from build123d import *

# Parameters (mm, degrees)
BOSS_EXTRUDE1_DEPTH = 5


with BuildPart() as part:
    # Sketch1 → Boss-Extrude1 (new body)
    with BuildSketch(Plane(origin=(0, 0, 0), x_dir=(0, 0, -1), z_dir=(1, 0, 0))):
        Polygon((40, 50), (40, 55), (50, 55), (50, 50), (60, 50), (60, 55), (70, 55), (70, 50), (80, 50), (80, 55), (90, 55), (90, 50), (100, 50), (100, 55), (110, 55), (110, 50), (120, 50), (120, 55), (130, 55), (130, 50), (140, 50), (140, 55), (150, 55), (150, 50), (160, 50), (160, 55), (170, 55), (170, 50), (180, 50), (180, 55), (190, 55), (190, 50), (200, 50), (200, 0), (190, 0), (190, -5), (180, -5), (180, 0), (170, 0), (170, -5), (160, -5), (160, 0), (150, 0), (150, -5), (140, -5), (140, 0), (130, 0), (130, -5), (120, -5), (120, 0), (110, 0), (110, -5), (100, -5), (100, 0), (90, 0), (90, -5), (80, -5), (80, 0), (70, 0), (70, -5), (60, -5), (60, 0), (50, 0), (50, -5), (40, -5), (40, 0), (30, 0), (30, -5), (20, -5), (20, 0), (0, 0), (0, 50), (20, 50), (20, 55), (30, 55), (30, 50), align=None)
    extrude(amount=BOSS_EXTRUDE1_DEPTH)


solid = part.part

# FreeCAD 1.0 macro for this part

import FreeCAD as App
import Part
import Sketcher

V = App.Vector
Q = App.Units.Quantity

doc = App.newDocument("Part")
body = doc.addObject("PartDesign::Body", "Body")

sketch1 = body.newObject("Sketcher::SketchObject", "Sketch")
sketch1.AttachmentSupport = (doc.getObject("YZ_Plane"), [""])
sketch1.MapMode = "FlatFace"
sketch1.addGeometry([
    Part.LineSegment(V(55, -40, 0), V(50, -40, 0)),
    Part.LineSegment(V(50, -40, 0), V(50, -30, 0)),
    Part.LineSegment(V(50, -30, 0), V(55, -30, 0)),
    Part.LineSegment(V(55, -30, 0), V(55, -20, 0)),
    Part.LineSegment(V(55, -20, 0), V(50, -20, 0)),
    Part.LineSegment(V(50, -20, 0), V(50, 0, 0)),
    Part.LineSegment(V(50, 0, 0), V(0, 0, 0)),
    Part.LineSegment(V(0, 0, 0), V(0, -20, 0)),
    Part.LineSegment(V(0, -20, 0), V(-5, -20, 0)),
    Part.LineSegment(V(-5, -20, 0), V(-5, -30, 0)),
    Part.LineSegment(V(-5, -30, 0), V(0, -30, 0)),
    Part.LineSegment(V(0, -30, 0), V(0, -40, 0)),
    Part.LineSegment(V(0, -40, 0), V(-5, -40, 0)),
    Part.LineSegment(V(-5, -40, 0), V(-5, -50, 0)),
    Part.LineSegment(V(-5, -50, 0), V(0, -50, 0)),
    Part.LineSegment(V(0, -50, 0), V(0, -60, 0)),
    Part.LineSegment(V(0, -60, 0), V(-5, -60, 0)),
    Part.LineSegment(V(-5, -60, 0), V(-5, -70, 0)),
    Part.LineSegment(V(-5, -70, 0), V(0, -70, 0)),
    Part.LineSegment(V(0, -70, 0), V(0, -80, 0)),
    Part.LineSegment(V(0, -80, 0), V(-5, -80, 0)),
    Part.LineSegment(V(-5, -80, 0), V(-5, -90, 0)),
    Part.LineSegment(V(-5, -90, 0), V(0, -90, 0)),
    Part.LineSegment(V(0, -90, 0), V(0, -100, 0)),
    Part.LineSegment(V(0, -100, 0), V(-5, -100, 0)),
    Part.LineSegment(V(-5, -100, 0), V(-5, -110, 0)),
    Part.LineSegment(V(-5, -110, 0), V(0, -110, 0)),
    Part.LineSegment(V(0, -110, 0), V(0, -120, 0)),
    Part.LineSegment(V(0, -120, 0), V(-5, -120, 0)),
    Part.LineSegment(V(-5, -120, 0), V(-5, -130, 0)),
    Part.LineSegment(V(-5, -130, 0), V(0, -130, 0)),
    Part.LineSegment(V(0, -130, 0), V(0, -140, 0)),
    Part.LineSegment(V(0, -140, 0), V(-5, -140, 0)),
    Part.LineSegment(V(-5, -140, 0), V(-5, -150, 0)),
    Part.LineSegment(V(-5, -150, 0), V(0, -150, 0)),
    Part.LineSegment(V(0, -150, 0), V(0, -160, 0)),
    Part.LineSegment(V(0, -160, 0), V(-5, -160, 0)),
    Part.LineSegment(V(-5, -160, 0), V(-5, -170, 0)),
    Part.LineSegment(V(-5, -170, 0), V(0, -170, 0)),
    Part.LineSegment(V(0, -170, 0), V(0, -180, 0)),
    Part.LineSegment(V(0, -180, 0), V(-5, -180, 0)),
    Part.LineSegment(V(-5, -180, 0), V(-5, -190, 0)),
    Part.LineSegment(V(-5, -190, 0), V(0, -190, 0)),
    Part.LineSegment(V(0, -190, 0), V(0, -200, 0)),
    Part.LineSegment(V(0, -200, 0), V(50, -200, 0)),
    Part.LineSegment(V(50, -200, 0), V(50, -190, 0)),
    Part.LineSegment(V(50, -190, 0), V(55, -190, 0)),
    Part.LineSegment(V(55, -190, 0), V(55, -180, 0)),
    Part.LineSegment(V(55, -180, 0), V(50, -180, 0)),
    Part.LineSegment(V(50, -180, 0), V(50, -170, 0)),
    Part.LineSegment(V(50, -170, 0), V(55, -170, 0)),
    Part.LineSegment(V(55, -170, 0), V(55, -160, 0)),
    Part.LineSegment(V(55, -160, 0), V(50, -160, 0)),
    Part.LineSegment(V(50, -160, 0), V(50, -150, 0)),
    Part.LineSegment(V(50, -150, 0), V(55, -150, 0)),
    Part.LineSegment(V(55, -150, 0), V(55, -140, 0)),
    Part.LineSegment(V(55, -140, 0), V(50, -140, 0)),
    Part.LineSegment(V(50, -140, 0), V(50, -130, 0)),
    Part.LineSegment(V(50, -130, 0), V(55, -130, 0)),
    Part.LineSegment(V(55, -130, 0), V(55, -120, 0)),
    Part.LineSegment(V(55, -120, 0), V(50, -120, 0)),
    Part.LineSegment(V(50, -120, 0), V(50, -110, 0)),
    Part.LineSegment(V(50, -110, 0), V(55, -110, 0)),
    Part.LineSegment(V(55, -110, 0), V(55, -100, 0)),
    Part.LineSegment(V(55, -100, 0), V(50, -100, 0)),
    Part.LineSegment(V(50, -100, 0), V(50, -90, 0)),
    Part.LineSegment(V(50, -90, 0), V(55, -90, 0)),
    Part.LineSegment(V(55, -90, 0), V(55, -80, 0)),
    Part.LineSegment(V(55, -80, 0), V(50, -80, 0)),
    Part.LineSegment(V(50, -80, 0), V(50, -70, 0)),
    Part.LineSegment(V(50, -70, 0), V(55, -70, 0)),
    Part.LineSegment(V(55, -70, 0), V(55, -60, 0)),
    Part.LineSegment(V(55, -60, 0), V(50, -60, 0)),
    Part.LineSegment(V(50, -60, 0), V(50, -50, 0)),
    Part.LineSegment(V(50, -50, 0), V(55, -50, 0)),
    Part.LineSegment(V(55, -50, 0), V(55, -40, 0)),
], False)
sketch1.addConstraint([
    Sketcher.Constraint("Coincident", 0, 2, 1, 1),
    Sketcher.Constraint("Coincident", 1, 2, 2, 1),
    Sketcher.Constraint("Coincident", 2, 2, 3, 1),
    Sketcher.Constraint("Coincident", 3, 2, 4, 1),
    Sketcher.Constraint("Coincident", 4, 2, 5, 1),
    Sketcher.Constraint("Coincident", 5, 2, 6, 1),
    Sketcher.Constraint("Coincident", 6, 2, 7, 1),
    Sketcher.Constraint("Coincident", 7, 2, 8, 1),
    Sketcher.Constraint("Coincident", 8, 2, 9, 1),
    Sketcher.Constraint("Coincident", 9, 2, 10, 1),
    Sketcher.Constraint("Coincident", 10, 2, 11, 1),
    Sketcher.Constraint("Coincident", 11, 2, 12, 1),
    Sketcher.Constraint("Coincident", 12, 2, 13, 1),
    Sketcher.Constraint("Coincident", 13, 2, 14, 1),
    Sketcher.Constraint("Coincident", 14, 2, 15, 1),
    Sketcher.Constraint("Coincident", 15, 2, 16, 1),
    Sketcher.Constraint("Coincident", 16, 2, 17, 1),
    Sketcher.Constraint("Coincident", 17, 2, 18, 1),
    Sketcher.Constraint("Coincident", 18, 2, 19, 1),
    Sketcher.Constraint("Coincident", 19, 2, 20, 1),
    Sketcher.Constraint("Coincident", 20, 2, 21, 1),
    Sketcher.Constraint("Coincident", 21, 2, 22, 1),
    Sketcher.Constraint("Coincident", 22, 2, 23, 1),
    Sketcher.Constraint("Coincident", 23, 2, 24, 1),
    Sketcher.Constraint("Coincident", 24, 2, 25, 1),
    Sketcher.Constraint("Coincident", 25, 2, 26, 1),
    Sketcher.Constraint("Coincident", 26, 2, 27, 1),
    Sketcher.Constraint("Coincident", 27, 2, 28, 1),
    Sketcher.Constraint("Coincident", 28, 2, 29, 1),
    Sketcher.Constraint("Coincident", 29, 2, 30, 1),
    Sketcher.Constraint("Coincident", 30, 2, 31, 1),
    Sketcher.Constraint("Coincident", 31, 2, 32, 1),
    Sketcher.Constraint("Coincident", 32, 2, 33, 1),
    Sketcher.Constraint("Coincident", 33, 2, 34, 1),
    Sketcher.Constraint("Coincident", 34, 2, 35, 1),
    Sketcher.Constraint("Coincident", 35, 2, 36, 1),
    Sketcher.Constraint("Coincident", 36, 2, 37, 1),
    Sketcher.Constraint("Coincident", 37, 2, 38, 1),
    Sketcher.Constraint("Coincident", 38, 2, 39, 1),
    Sketcher.Constraint("Coincident", 39, 2, 40, 1),
    Sketcher.Constraint("Coincident", 40, 2, 41, 1),
    Sketcher.Constraint("Coincident", 41, 2, 42, 1),
    Sketcher.Constraint("Coincident", 42, 2, 43, 1),
    Sketcher.Constraint("Coincident", 43, 2, 44, 1),
    Sketcher.Constraint("Coincident", 44, 2, 45, 1),
    Sketcher.Constraint("Coincident", 45, 2, 46, 1),
    Sketcher.Constraint("Coincident", 46, 2, 47, 1),
    Sketcher.Constraint("Coincident", 47, 2, 48, 1),
    Sketcher.Constraint("Coincident", 48, 2, 49, 1),
    Sketcher.Constraint("Coincident", 49, 2, 50, 1),
    Sketcher.Constraint("Coincident", 50, 2, 51, 1),
    Sketcher.Constraint("Coincident", 51, 2, 52, 1),
    Sketcher.Constraint("Coincident", 52, 2, 53, 1),
    Sketcher.Constraint("Coincident", 53, 2, 54, 1),
    Sketcher.Constraint("Coincident", 54, 2, 55, 1),
    Sketcher.Constraint("Coincident", 55, 2, 56, 1),
    Sketcher.Constraint("Coincident", 56, 2, 57, 1),
    Sketcher.Constraint("Coincident", 57, 2, 58, 1),
    Sketcher.Constraint("Coincident", 58, 2, 59, 1),
    Sketcher.Constraint("Coincident", 59, 2, 60, 1),
    Sketcher.Constraint("Coincident", 60, 2, 61, 1),
    Sketcher.Constraint("Coincident", 61, 2, 62, 1),
    Sketcher.Constraint("Coincident", 62, 2, 63, 1),
    Sketcher.Constraint("Coincident", 63, 2, 64, 1),
    Sketcher.Constraint("Coincident", 64, 2, 65, 1),
    Sketcher.Constraint("Coincident", 65, 2, 66, 1),
    Sketcher.Constraint("Coincident", 66, 2, 67, 1),
    Sketcher.Constraint("Coincident", 67, 2, 68, 1),
    Sketcher.Constraint("Coincident", 68, 2, 69, 1),
    Sketcher.Constraint("Coincident", 69, 2, 70, 1),
    Sketcher.Constraint("Coincident", 70, 2, 71, 1),
    Sketcher.Constraint("Coincident", 71, 2, 72, 1),
    Sketcher.Constraint("Coincident", 72, 2, 73, 1),
    Sketcher.Constraint("Coincident", 73, 2, 74, 1),
    Sketcher.Constraint("Coincident", 74, 2, 75, 1),
    Sketcher.Constraint("Coincident", 75, 2, 0, 1),
    Sketcher.Constraint("Horizontal", 0),
    Sketcher.Constraint("Vertical", 1),
    Sketcher.Constraint("Horizontal", 2),
    Sketcher.Constraint("Vertical", 3),
    Sketcher.Constraint("Horizontal", 4),
    Sketcher.Constraint("Vertical", 5),
    Sketcher.Constraint("Horizontal", 6),
    Sketcher.Constraint("Vertical", 7),
    Sketcher.Constraint("Horizontal", 8),
    Sketcher.Constraint("Vertical", 9),
    Sketcher.Constraint("Horizontal", 10),
    Sketcher.Constraint("Vertical", 11),
    Sketcher.Constraint("Horizontal", 12),
    Sketcher.Constraint("Vertical", 13),
    Sketcher.Constraint("Horizontal", 14),
    Sketcher.Constraint("Vertical", 15),
    Sketcher.Constraint("Horizontal", 16),
    Sketcher.Constraint("Vertical", 17),
    Sketcher.Constraint("Horizontal", 18),
    Sketcher.Constraint("Vertical", 19),
    Sketcher.Constraint("Horizontal", 20),
    Sketcher.Constraint("Vertical", 21),
    Sketcher.Constraint("Horizontal", 22),
    Sketcher.Constraint("Vertical", 23),
    Sketcher.Constraint("Horizontal", 24),
    Sketcher.Constraint("Vertical", 25),
    Sketcher.Constraint("Horizontal", 26),
    Sketcher.Constraint("Vertical", 27),
    Sketcher.Constraint("Horizontal", 28),
    Sketcher.Constraint("Vertical", 29),
    Sketcher.Constraint("Horizontal", 30),
    Sketcher.Constraint("Vertical", 31),
    Sketcher.Constraint("Horizontal", 32),
    Sketcher.Constraint("Vertical", 33),
    Sketcher.Constraint("Horizontal", 34),
    Sketcher.Constraint("Vertical", 35),
    Sketcher.Constraint("Horizontal", 36),
    Sketcher.Constraint("Vertical", 37),
    Sketcher.Constraint("Horizontal", 38),
    Sketcher.Constraint("Vertical", 39),
    Sketcher.Constraint("Horizontal", 40),
    Sketcher.Constraint("Vertical", 41),
    Sketcher.Constraint("Horizontal", 42),
    Sketcher.Constraint("Vertical", 43),
    Sketcher.Constraint("Horizontal", 44),
    Sketcher.Constraint("Vertical", 45),
    Sketcher.Constraint("Horizontal", 46),
    Sketcher.Constraint("Vertical", 47),
    Sketcher.Constraint("Horizontal", 48),
    Sketcher.Constraint("Vertical", 49),
    Sketcher.Constraint("Horizontal", 50),
    Sketcher.Constraint("Vertical", 51),
    Sketcher.Constraint("Horizontal", 52),
    Sketcher.Constraint("Vertical", 53),
    Sketcher.Constraint("Horizontal", 54),
    Sketcher.Constraint("Vertical", 55),
    Sketcher.Constraint("Horizontal", 56),
    Sketcher.Constraint("Vertical", 57),
    Sketcher.Constraint("Horizontal", 58),
    Sketcher.Constraint("Vertical", 59),
    Sketcher.Constraint("Horizontal", 60),
    Sketcher.Constraint("Vertical", 61),
    Sketcher.Constraint("Horizontal", 62),
    Sketcher.Constraint("Vertical", 63),
    Sketcher.Constraint("Horizontal", 64),
    Sketcher.Constraint("Vertical", 65),
    Sketcher.Constraint("Horizontal", 66),
    Sketcher.Constraint("Vertical", 67),
    Sketcher.Constraint("Horizontal", 68),
    Sketcher.Constraint("Vertical", 69),
    Sketcher.Constraint("Horizontal", 70),
    Sketcher.Constraint("Vertical", 71),
    Sketcher.Constraint("Horizontal", 72),
    Sketcher.Constraint("Vertical", 73),
    Sketcher.Constraint("Horizontal", 74),
    Sketcher.Constraint("Vertical", 75),
    Sketcher.Constraint("Coincident", 6, 2, -1, 1),
    Sketcher.Constraint("PointOnObject", 10, 2, -2),
    Sketcher.Constraint("PointOnObject", 14, 2, -2),
    Sketcher.Constraint("PointOnObject", 18, 2, -2),
    Sketcher.Constraint("PointOnObject", 22, 2, -2),
    Sketcher.Constraint("PointOnObject", 26, 2, -2),
    Sketcher.Constraint("PointOnObject", 30, 2, -2),
    Sketcher.Constraint("PointOnObject", 34, 2, -2),
    Sketcher.Constraint("PointOnObject", 38, 2, -2),
    Sketcher.Constraint("PointOnObject", 42, 2, -2),
    Sketcher.Constraint("Horizontal", 4, 2, 7, 2),
    Sketcher.Constraint("Horizontal", 2, 2, 9, 2),
    Sketcher.Constraint("Horizontal", 0, 2, 11, 2),
    Sketcher.Constraint("Horizontal", 42, 2, 45, 2),
    Sketcher.Constraint("Horizontal", 40, 2, 47, 2),
    Sketcher.Constraint("Horizontal", 38, 2, 49, 2),
    Sketcher.Constraint("Horizontal", 36, 2, 51, 2),
    Sketcher.Constraint("Horizontal", 34, 2, 53, 2),
    Sketcher.Constraint("Horizontal", 32, 2, 55, 2),
    Sketcher.Constraint("Horizontal", 30, 2, 57, 2),
    Sketcher.Constraint("Horizontal", 28, 2, 59, 2),
    Sketcher.Constraint("Horizontal", 26, 2, 61, 2),
    Sketcher.Constraint("Horizontal", 24, 2, 63, 2),
    Sketcher.Constraint("Horizontal", 22, 2, 65, 2),
    Sketcher.Constraint("Horizontal", 20, 2, 67, 2),
    Sketcher.Constraint("Horizontal", 18, 2, 69, 2),
    Sketcher.Constraint("Horizontal", 16, 2, 71, 2),
    Sketcher.Constraint("Horizontal", 14, 2, 73, 2),
    Sketcher.Constraint("Vertical", 1, 2, 4, 2),
    Sketcher.Constraint("Vertical", 9, 2, 12, 2),
    Sketcher.Constraint("Vertical", 13, 2, 16, 2),
    Sketcher.Constraint("Vertical", 17, 2, 20, 2),
    Sketcher.Constraint("Vertical", 21, 2, 24, 2),
    Sketcher.Constraint("Vertical", 25, 2, 28, 2),
    Sketcher.Constraint("Vertical", 29, 2, 32, 2),
    Sketcher.Constraint("Vertical", 33, 2, 36, 2),
    Sketcher.Constraint("Vertical", 37, 2, 40, 2),
    Sketcher.Constraint("Vertical", 5, 2, 44, 2),
    Sketcher.Constraint("Vertical", 3, 2, 46, 2),
    Sketcher.Constraint("Vertical", 45, 2, 48, 2),
    Sketcher.Constraint("Vertical", 47, 2, 50, 2),
    Sketcher.Constraint("Vertical", 49, 2, 52, 2),
    Sketcher.Constraint("Vertical", 51, 2, 54, 2),
    Sketcher.Constraint("Vertical", 53, 2, 56, 2),
    Sketcher.Constraint("Vertical", 55, 2, 58, 2),
    Sketcher.Constraint("Vertical", 57, 2, 60, 2),
    Sketcher.Constraint("Vertical", 59, 2, 62, 2),
    Sketcher.Constraint("Vertical", 61, 2, 64, 2),
    Sketcher.Constraint("Vertical", 63, 2, 66, 2),
    Sketcher.Constraint("Vertical", 65, 2, 68, 2),
    Sketcher.Constraint("Vertical", 67, 2, 70, 2),
    Sketcher.Constraint("Vertical", 69, 2, 72, 2),
    Sketcher.Constraint("Vertical", 71, 2, 74, 2),
    Sketcher.Constraint("Equal", 4, 8),
    Sketcher.Constraint("Equal", 1, 3),
    Sketcher.Constraint("Equal", 11, 13),
    Sketcher.Constraint("Equal", 13, 15),
    Sketcher.Constraint("Equal", 15, 17),
    Sketcher.Constraint("Equal", 17, 19),
    Sketcher.Constraint("Equal", 19, 21),
    Sketcher.Constraint("Equal", 21, 23),
    Sketcher.Constraint("Equal", 23, 25),
    Sketcher.Constraint("Equal", 25, 27),
    Sketcher.Constraint("Equal", 27, 29),
    Sketcher.Constraint("Equal", 29, 31),
    Sketcher.Constraint("Equal", 31, 33),
    Sketcher.Constraint("Equal", 33, 35),
    Sketcher.Constraint("Equal", 35, 37),
    Sketcher.Constraint("Equal", 37, 39),
    Sketcher.Constraint("Equal", 39, 41),
    Sketcher.Constraint("Equal", 41, 43),
    Sketcher.Constraint("DistanceX", 0, 2, 0, 1, Q("5 mm")),
    Sketcher.Constraint("DistanceX", 6, 2, 6, 1, Q("50 mm")),
    Sketcher.Constraint("DistanceY", 1, 1, 1, 2, Q("10 mm")),
    Sketcher.Constraint("DistanceY", 5, 1, 5, 2, Q("20 mm")),
])
pad1 = body.newObject("PartDesign::Pad", "Pad")
pad1.Profile = sketch1
pad1.Length = 5

doc.recompute()
